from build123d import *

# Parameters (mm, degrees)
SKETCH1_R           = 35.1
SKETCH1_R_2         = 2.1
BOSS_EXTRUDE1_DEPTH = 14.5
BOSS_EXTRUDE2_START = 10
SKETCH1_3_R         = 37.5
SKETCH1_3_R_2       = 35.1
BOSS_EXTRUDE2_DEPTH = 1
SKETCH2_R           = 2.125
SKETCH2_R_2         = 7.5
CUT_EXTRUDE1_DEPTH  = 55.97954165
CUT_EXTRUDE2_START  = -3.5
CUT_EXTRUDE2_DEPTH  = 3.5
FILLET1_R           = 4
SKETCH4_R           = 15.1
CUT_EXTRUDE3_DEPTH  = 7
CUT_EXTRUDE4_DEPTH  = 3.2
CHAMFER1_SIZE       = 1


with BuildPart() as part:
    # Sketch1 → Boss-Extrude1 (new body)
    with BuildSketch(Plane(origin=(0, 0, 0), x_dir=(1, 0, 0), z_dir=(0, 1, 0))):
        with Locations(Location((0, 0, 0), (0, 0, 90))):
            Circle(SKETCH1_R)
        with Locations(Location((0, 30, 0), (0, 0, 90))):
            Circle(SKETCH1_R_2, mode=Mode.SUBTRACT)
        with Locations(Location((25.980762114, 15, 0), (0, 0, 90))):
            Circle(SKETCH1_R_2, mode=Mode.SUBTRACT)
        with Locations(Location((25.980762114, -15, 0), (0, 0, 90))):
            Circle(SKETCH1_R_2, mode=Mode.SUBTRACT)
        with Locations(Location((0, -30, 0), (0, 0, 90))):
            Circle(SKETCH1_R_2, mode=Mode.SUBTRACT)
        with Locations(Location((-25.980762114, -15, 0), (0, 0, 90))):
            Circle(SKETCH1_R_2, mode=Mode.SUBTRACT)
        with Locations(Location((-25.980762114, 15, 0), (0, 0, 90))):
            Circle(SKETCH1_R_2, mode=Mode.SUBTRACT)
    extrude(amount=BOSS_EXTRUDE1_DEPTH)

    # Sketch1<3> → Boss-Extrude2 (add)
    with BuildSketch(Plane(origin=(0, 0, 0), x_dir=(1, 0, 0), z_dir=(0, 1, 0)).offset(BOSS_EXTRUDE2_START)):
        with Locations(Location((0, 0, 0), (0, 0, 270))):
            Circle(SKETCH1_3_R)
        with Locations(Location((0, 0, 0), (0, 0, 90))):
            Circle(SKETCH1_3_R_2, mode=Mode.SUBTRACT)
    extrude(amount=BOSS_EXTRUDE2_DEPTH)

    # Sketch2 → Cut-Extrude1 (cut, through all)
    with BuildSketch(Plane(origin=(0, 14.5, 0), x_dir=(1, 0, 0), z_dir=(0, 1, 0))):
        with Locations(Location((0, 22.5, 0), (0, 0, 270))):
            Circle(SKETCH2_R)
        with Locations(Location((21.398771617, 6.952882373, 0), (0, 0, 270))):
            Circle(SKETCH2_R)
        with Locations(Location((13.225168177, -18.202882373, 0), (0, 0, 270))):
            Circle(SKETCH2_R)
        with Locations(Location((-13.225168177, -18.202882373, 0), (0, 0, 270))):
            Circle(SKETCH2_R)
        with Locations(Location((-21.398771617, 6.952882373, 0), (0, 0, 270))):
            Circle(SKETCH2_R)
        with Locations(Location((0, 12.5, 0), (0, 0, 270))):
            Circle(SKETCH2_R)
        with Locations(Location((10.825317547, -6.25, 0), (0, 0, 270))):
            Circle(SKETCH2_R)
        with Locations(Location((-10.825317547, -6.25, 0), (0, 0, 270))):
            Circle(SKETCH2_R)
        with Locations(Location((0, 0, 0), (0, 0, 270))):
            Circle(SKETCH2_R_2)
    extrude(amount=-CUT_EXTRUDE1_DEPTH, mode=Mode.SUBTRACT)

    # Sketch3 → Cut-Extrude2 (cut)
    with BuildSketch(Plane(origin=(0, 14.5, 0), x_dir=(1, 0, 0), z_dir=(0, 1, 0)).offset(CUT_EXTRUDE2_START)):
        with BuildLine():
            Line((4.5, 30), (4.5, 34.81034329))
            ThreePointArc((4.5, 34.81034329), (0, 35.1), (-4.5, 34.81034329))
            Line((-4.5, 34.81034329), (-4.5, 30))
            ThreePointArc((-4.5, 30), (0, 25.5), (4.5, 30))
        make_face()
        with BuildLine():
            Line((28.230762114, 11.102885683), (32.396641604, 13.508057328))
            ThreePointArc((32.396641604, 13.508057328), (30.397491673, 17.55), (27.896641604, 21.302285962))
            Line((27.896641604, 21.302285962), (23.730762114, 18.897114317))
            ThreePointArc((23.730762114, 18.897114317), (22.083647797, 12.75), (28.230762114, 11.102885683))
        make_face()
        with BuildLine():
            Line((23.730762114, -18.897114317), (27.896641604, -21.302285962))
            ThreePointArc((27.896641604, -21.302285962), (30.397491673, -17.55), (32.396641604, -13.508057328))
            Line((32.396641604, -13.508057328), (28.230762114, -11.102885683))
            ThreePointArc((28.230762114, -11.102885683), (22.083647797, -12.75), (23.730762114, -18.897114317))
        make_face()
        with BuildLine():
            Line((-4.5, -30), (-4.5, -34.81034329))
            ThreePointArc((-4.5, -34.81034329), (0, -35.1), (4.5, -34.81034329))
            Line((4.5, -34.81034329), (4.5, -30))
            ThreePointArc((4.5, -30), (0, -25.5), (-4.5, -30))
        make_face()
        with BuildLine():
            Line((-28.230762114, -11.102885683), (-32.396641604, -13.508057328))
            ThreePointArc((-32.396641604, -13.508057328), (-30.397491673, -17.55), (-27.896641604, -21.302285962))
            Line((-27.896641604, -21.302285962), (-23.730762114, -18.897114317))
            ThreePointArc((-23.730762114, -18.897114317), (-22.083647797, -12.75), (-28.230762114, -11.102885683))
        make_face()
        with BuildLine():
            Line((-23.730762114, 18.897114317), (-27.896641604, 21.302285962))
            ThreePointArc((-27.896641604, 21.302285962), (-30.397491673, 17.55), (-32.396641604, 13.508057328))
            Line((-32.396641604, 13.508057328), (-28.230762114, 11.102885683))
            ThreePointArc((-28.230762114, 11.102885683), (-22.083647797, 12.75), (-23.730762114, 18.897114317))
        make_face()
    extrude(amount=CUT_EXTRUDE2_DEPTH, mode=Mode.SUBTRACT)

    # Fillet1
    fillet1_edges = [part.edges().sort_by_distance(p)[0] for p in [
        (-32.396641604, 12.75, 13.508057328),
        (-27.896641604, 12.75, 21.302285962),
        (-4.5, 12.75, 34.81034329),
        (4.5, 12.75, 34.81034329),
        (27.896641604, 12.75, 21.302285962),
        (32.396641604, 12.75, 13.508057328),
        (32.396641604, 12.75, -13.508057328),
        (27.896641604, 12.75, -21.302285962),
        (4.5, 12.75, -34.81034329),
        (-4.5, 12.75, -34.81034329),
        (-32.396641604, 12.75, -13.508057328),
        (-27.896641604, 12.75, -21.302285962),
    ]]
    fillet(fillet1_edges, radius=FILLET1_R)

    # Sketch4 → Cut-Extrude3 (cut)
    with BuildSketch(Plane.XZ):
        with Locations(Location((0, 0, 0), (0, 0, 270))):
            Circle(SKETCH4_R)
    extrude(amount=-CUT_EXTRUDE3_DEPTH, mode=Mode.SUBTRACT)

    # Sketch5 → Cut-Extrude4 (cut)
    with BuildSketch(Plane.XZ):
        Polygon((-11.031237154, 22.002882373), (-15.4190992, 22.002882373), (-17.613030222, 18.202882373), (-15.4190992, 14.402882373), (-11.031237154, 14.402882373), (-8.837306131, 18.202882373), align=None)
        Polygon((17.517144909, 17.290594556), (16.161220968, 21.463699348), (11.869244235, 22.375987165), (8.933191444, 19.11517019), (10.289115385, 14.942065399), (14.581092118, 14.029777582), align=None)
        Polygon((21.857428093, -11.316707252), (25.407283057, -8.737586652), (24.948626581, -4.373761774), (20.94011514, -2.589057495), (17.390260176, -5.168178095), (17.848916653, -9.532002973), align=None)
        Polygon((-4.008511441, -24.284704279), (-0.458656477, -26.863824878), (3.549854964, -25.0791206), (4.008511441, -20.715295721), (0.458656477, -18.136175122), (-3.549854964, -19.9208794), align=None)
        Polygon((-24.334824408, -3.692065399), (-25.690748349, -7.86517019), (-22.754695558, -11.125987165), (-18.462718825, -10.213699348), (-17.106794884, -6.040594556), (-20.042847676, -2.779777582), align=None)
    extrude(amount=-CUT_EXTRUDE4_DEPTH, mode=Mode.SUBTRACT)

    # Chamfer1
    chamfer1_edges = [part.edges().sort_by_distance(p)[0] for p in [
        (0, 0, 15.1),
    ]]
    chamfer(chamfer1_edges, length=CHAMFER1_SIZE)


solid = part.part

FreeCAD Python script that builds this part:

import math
import FreeCAD as App
import Part
import Sketcher
from FreeCAD import Vector
Q = App.Units.Quantity


def edges_at(feature, points):
    """Names of the edges that pass closest to the given points."""
    edges = feature.Shape.Edges
    near = lambda p: min(range(len(edges)), key=lambda i: edges[i].distToShape(Part.Vertex(*p))[0])
    return sorted({f"Edge{near(p) + 1}" for p in points})


def add_polygon(sketch, points):
    """Adds a closed chain of lines whose ends are joined by coincident constraints."""
    first, n = sketch.GeometryCount, len(points)
    for a, b in zip(points, points[1:] + points[:1]):
        sketch.addGeometry(Part.LineSegment(App.Vector(*a, 0), App.Vector(*b, 0)), False)
    for i in range(n):
        sketch.addConstraint(Sketcher.Constraint("Coincident", first + i, 2, first + (i + 1) % n, 1))

doc = App.newDocument("Part")
params = doc.addObject("Spreadsheet::Sheet", "Params")
for row, (alias, value) in enumerate([
    ("sketch1_diameter", "70.2 mm"),
    ("sketch1_diameter2", "4.2 mm"),
    ("pad1_length", "14.5 mm"),
    ("sketch2_diameter", "75 mm"),
    ("sketch2_diameter2", "70.2 mm"),
    ("pad2_length", "1 mm"),
    ("sketch3_diameter", "15 mm"),
    ("sketch3_diameter2", "4.25 mm"),
    ("sketch4_radius", "35.1 mm"),
    ("sketch4_radius2", "4.5 mm"),
    ("pocket2_length", "3.5 mm"),
    ("fillet_radius", "4 mm"),
    ("sketch5_diameter", "30.2 mm"),
    ("pocket3_length", "7 mm"),
    ("pocket4_length", "3.2 mm"),
    ("chamfer_size", "1 mm"),
], start=1):
    params.set(f"A{row}", alias)
    params.set(f"B{row}", "=" + value)
    params.setAlias(f"B{row}", alias)

body = doc.addObject("PartDesign::Body", "Body")

sketch1 = doc.addObject("Sketcher::SketchObject", "Sketch")
body.addObject(sketch1)
sketch1.AttachmentSupport = (doc.XZ_Plane, [""])
sketch1.MapMode = "FlatFace"
sketch1.addGeometry(Part.Circle(Vector(0, 0, 0), Vector(0, 0, 1), 35.1), False)
sketch1.addGeometry(Part.Circle(Vector(26, 15, 0), Vector(0, 0, 1), 2.1), False)
sketch1.addGeometry(Part.Circle(Vector(0, 30, 0), Vector(0, 0, 1), 2.1), False)
sketch1.addGeometry(Part.Circle(Vector(26, -15, 0), Vector(0, 0, 1), 2.1), False)
sketch1.addGeometry(Part.Circle(Vector(-26, 15, 0), Vector(0, 0, 1), 2.1), False)
sketch1.addGeometry(Part.Circle(Vector(0, -30, 0), Vector(0, 0, 1), 2.1), False)
sketch1.addGeometry(Part.Circle(Vector(-26, -15, 0), Vector(0, 0, 1), 2.1), False)
sketch1.addConstraint(Sketcher.Constraint("Coincident", 0, 3, -1, 1))
sketch1.addConstraint(Sketcher.Constraint("Equal", 1, 2))
sketch1.addConstraint(Sketcher.Constraint("Equal", 2, 3))
sketch1.addConstraint(Sketcher.Constraint("Equal", 3, 4))
sketch1.addConstraint(Sketcher.Constraint("Equal", 4, 5))
sketch1.addConstraint(Sketcher.Constraint("Equal", 5, 6))
sketch1.addConstraint(Sketcher.Constraint("Symmetric", 3, 3, 4, 3, -1, 1))
sketch1.addConstraint(Sketcher.Constraint("Symmetric", 2, 3, 5, 3, -1, 1))
sketch1.addConstraint(Sketcher.Constraint("Symmetric", 1, 3, 6, 3, -1, 1))
sketch1.addConstraint(Sketcher.Constraint("Symmetric", 1, 3, 4, 3, -2))
sketch1.addConstraint(Sketcher.Constraint("PointOnObject", 2, 3, -2))
sketch1.addConstraint(Sketcher.Constraint("Diameter", 0, Q("70.2 mm")))
sketch1.addConstraint(Sketcher.Constraint("Diameter", 1, Q("4.2 mm")))
sketch1.addConstraint(Sketcher.Constraint("DistanceY", -1, 1, 1, 3, Q("15 mm")))
sketch1.addConstraint(Sketcher.Constraint("DistanceY", -1, 1, 2, 3, Q("30 mm")))
sketch1.addConstraint(Sketcher.Constraint("DistanceX", -1, 1, 1, 3, Q("25.980762 mm")))
sketch1.setExpression("Constraints[11]", "Params.sketch1_diameter")
sketch1.setExpression("Constraints[12]", "Params.sketch1_diameter2")
pad1 = doc.addObject("PartDesign::Pad", "Pad")
body.addObject(pad1)
pad1.Profile = sketch1
pad1.setExpression("Length", "Params.pad1_length")
pad1.Reversed = True

sketch2 = doc.addObject("Sketcher::SketchObject", "Sketch001")
body.addObject(sketch2)
sketch2.AttachmentSupport = (doc.XZ_Plane, [""])
sketch2.MapMode = "FlatFace"
sketch2.AttachmentOffset = App.Placement(Vector(0, 0, -10), App.Rotation())
sketch2.addGeometry(Part.Circle(Vector(0, 0, 0), Vector(0, 0, 1), 38), False)
sketch2.addGeometry(Part.Circle(Vector(0, 0, 0), Vector(0, 0, 1), 35), False)
sketch2.addConstraint(Sketcher.Constraint("Coincident", 0, 3, -1, 1))
sketch2.addConstraint(Sketcher.Constraint("Coincident", 1, 3, -1, 1))
sketch2.addConstraint(Sketcher.Constraint("Diameter", 0, Q("75 mm")))
sketch2.addConstraint(Sketcher.Constraint("Diameter", 1, Q("70.2 mm")))
sketch2.setExpression("Constraints[2]", "Params.sketch2_diameter")
sketch2.setExpression("Constraints[3]", "Params.sketch2_diameter2")
pad2 = doc.addObject("PartDesign::Pad", "Pad001")
body.addObject(pad2)
pad2.Profile = sketch2
pad2.setExpression("Length", "Params.pad2_length")
pad2.Reversed = True

sketch3 = doc.addObject("Sketcher::SketchObject", "Sketch002")
body.addObject(sketch3)
sketch3.AttachmentSupport = (doc.XZ_Plane, [""])
sketch3.MapMode = "FlatFace"
sketch3.AttachmentOffset = App.Placement(Vector(0, 0, -14.5), App.Rotation())
sketch3.addGeometry(Part.Circle(Vector(0, -22.5, 0), Vector(0, 0, 1), 2.1), False)
sketch3.addGeometry(Part.Circle(Vector(21.4, -7, 0), Vector(0, 0, 1), 2.1), False)
sketch3.addGeometry(Part.Circle(Vector(13.2, 18.2, 0), Vector(0, 0, 1), 2.1), False)
sketch3.addGeometry(Part.Circle(Vector(-13.2, 18.2, 0), Vector(0, 0, 1), 2.1), False)
sketch3.addGeometry(Part.Circle(Vector(-21.4, -7, 0), Vector(0, 0, 1), 2.1), False)
sketch3.addGeometry(Part.Circle(Vector(0, -12.5, 0), Vector(0, 0, 1), 2.1), False)
sketch3.addGeometry(Part.Circle(Vector(10.8, 6.2, 0), Vector(0, 0, 1), 2.1), False)
sketch3.addGeometry(Part.Circle(Vector(-10.8, 6.2, 0), Vector(0, 0, 1), 2.1), False)
sketch3.addGeometry(Part.Circle(Vector(0, 0, 0), Vector(0, 0, 1), 7.5), False)
sketch3.addConstraint(Sketcher.Constraint("Coincident", 8, 3, -1, 1))
sketch3.addConstraint(Sketcher.Constraint("Equal", 0, 1))
sketch3.addConstraint(Sketcher.Constraint("Equal", 1, 2))
sketch3.addConstraint(Sketcher.Constraint("Equal", 2, 3))
sketch3.addConstraint(Sketcher.Constraint("Equal", 3, 4))
sketch3.addConstraint(Sketcher.Constraint("Equal", 4, 5))
sketch3.addConstraint(Sketcher.Constraint("Equal", 5, 6))
sketch3.addConstraint(Sketcher.Constraint("Equal", 6, 7))
sketch3.addConstraint(Sketcher.Constraint("Symmetric", 2, 3, 3, 3, -2))
sketch3.addConstraint(Sketcher.Constraint("Symmetric", 1, 3, 4, 3, -2))
sketch3.addConstraint(Sketcher.Constraint("Symmetric", 6, 3, 7, 3, -2))
sketch3.addConstraint(Sketcher.Constraint("PointOnObject", 0, 3, -2))
sketch3.addConstraint(Sketcher.Constraint("PointOnObject", 5, 3, -2))
sketch3.addConstraint(Sketcher.Constraint("Diameter", 8, Q("15 mm")))
sketch3.addConstraint(Sketcher.Constraint("Diameter", 0, Q("4.25 mm")))
sketch3.addConstraint(Sketcher.Constraint("DistanceY", 0, 3, 5, 3, Q("10 mm")))
sketch3.addConstraint(Sketcher.Constraint("DistanceY", 0, 3, -1, 1, Q("22.5 mm")))
sketch3.addConstraint(Sketcher.Constraint("DistanceY", -1, 1, 6, 3, Q("6.25 mm")))
sketch3.addConstraint(Sketcher.Constraint("DistanceX", -1, 1, 1, 3, Q("21.398772 mm")))
sketch3.addConstraint(Sketcher.Constraint("DistanceX", -1, 1, 2, 3, Q("13.225168 mm")))
sketch3.addConstraint(Sketcher.Constraint("DistanceX", 6, 3, 2, 3, Q("2.399851 mm")))
sketch3.addConstraint(Sketcher.Constraint("DistanceY", 1, 3, -1, 1, Q("6.952882 mm")))
sketch3.addConstraint(Sketcher.Constraint("DistanceY", -1, 1, 2, 3, Q("18.202882 mm")))
sketch3.setExpression("Constraints[13]", "Params.sketch3_diameter")
sketch3.setExpression("Constraints[14]", "Params.sketch3_diameter2")
pocket1 = doc.addObject("PartDesign::Pocket", "Pocket")
body.addObject(pocket1)
pocket1.Profile = sketch3
pocket1.Type = "ThroughAll"
pocket1.Reversed = True

sketch4 = doc.addObject("Sketcher::SketchObject", "Sketch003")
body.addObject(sketch4)
sketch4.AttachmentSupport = (doc.XZ_Plane, [""])
sketch4.MapMode = "FlatFace"
sketch4.AttachmentOffset = App.Placement(Vector(0, 0, -11), App.Rotation())
sketch4.addGeometry(Part.LineSegment(Vector(4.5, -30, 0), Vector(4.5, -34.8, 0)), False)
sketch4.addGeometry(Part.ArcOfCircle(Part.Circle(Vector(0, 0, 0), Vector(0, 0, 1), 35.1), math.radians(-97.37), math.radians(-82.63)), False)
sketch4.addGeometry(Part.LineSegment(Vector(-4.5, -34.8, 0), Vector(-4.5, -30, 0)), False)
sketch4.addGeometry(Part.ArcOfCircle(Part.Circle(Vector(0, -30, 0), Vector(0, 0, 1), 4.5), math.radians(0), math.radians(180)), False)
sketch4.addGeometry(Part.LineSegment(Vector(28.2, -11.1, 0), Vector(32.4, -13.5, 0)), False)
sketch4.addGeometry(Part.ArcOfCircle(Part.Circle(Vector(0, 0, 0), Vector(0, 0, 1), 35.1), math.radians(-37.37), math.radians(-22.63)), False)
sketch4.addGeometry(Part.LineSegment(Vector(27.9, -21.3, 0), Vector(23.7, -18.9, 0)), False)
sketch4.addGeometry(Part.ArcOfCircle(Part.Circle(Vector(26, -15, 0), Vector(0, 0, 1), 4.5), math.radians(60), math.radians(240)), False)
sketch4.addGeometry(Part.LineSegment(Vector(23.7, 18.9, 0), Vector(27.9, 21.3, 0)), False)
sketch4.addGeometry(Part.ArcOfCircle(Part.Circle(Vector(0, 0, 0), Vector(0, 0, 1), 35.1), math.radians(22.63), math.radians(37.37)), False)
sketch4.addGeometry(Part.LineSegment(Vector(32.4, 13.5, 0), Vector(28.2, 11.1, 0)), False)
sketch4.addGeometry(Part.ArcOfCircle(Part.Circle(Vector(26, 15, 0), Vector(0, 0, 1), 4.5), math.radians(120), math.radians(300)), False)
sketch4.addGeometry(Part.LineSegment(Vector(-4.5, 30, 0), Vector(-4.5, 34.8, 0)), False)
sketch4.addGeometry(Part.ArcOfCircle(Part.Circle(Vector(0, 0, 0), Vector(0, 0, 1), 35.1), math.radians(82.63), math.radians(97.37)), False)
sketch4.addGeometry(Part.LineSegment(Vector(4.5, 34.8, 0), Vector(4.5, 30, 0)), False)
sketch4.addGeometry(Part.ArcOfCircle(Part.Circle(Vector(0, 30, 0), Vector(0, 0, 1), 4.5), math.radians(180), math.radians(360)), False)
sketch4.addGeometry(Part.LineSegment(Vector(-28.2, 11.1, 0), Vector(-32.4, 13.5, 0)), False)
sketch4.addGeometry(Part.ArcOfCircle(Part.Circle(Vector(0, 0, 0), Vector(0, 0, 1), 35.1), math.radians(142.63), math.radians(157.37)), False)
sketch4.addGeometry(Part.LineSegment(Vector(-27.9, 21.3, 0), Vector(-23.7, 18.9, 0)), False)
sketch4.addGeometry(Part.ArcOfCircle(Part.Circle(Vector(-26, 15, 0), Vector(0, 0, 1), 4.5), math.radians(-120), math.radians(60)), False)
sketch4.addGeometry(Part.LineSegment(Vector(-23.7, -18.9, 0), Vector(-27.9, -21.3, 0)), False)
sketch4.addGeometry(Part.ArcOfCircle(Part.Circle(Vector(0, 0, 0), Vector(0, 0, 1), 35.1), math.radians(-157.37), math.radians(-142.63)), False)
sketch4.addGeometry(Part.LineSegment(Vector(-32.4, -13.5, 0), Vector(-28.2, -11.1, 0)), False)
sketch4.addGeometry(Part.ArcOfCircle(Part.Circle(Vector(-26, -15, 0), Vector(0, 0, 1), 4.5), math.radians(-60), math.radians(120)), False)
sketch4.addConstraint(Sketcher.Constraint("Coincident", 0, 2, 1, 2))
sketch4.addConstraint(Sketcher.Constraint("Coincident", 1, 1, 2, 1))
sketch4.addConstraint(Sketcher.Constraint("Tangent", 2, 2, 3, 2))
sketch4.addConstraint(Sketcher.Constraint("Tangent", 3, 1, 0, 1))
sketch4.addConstraint(Sketcher.Constraint("Coincident", 4, 2, 5, 2))
sketch4.addConstraint(Sketcher.Constraint("Coincident", 5, 1, 6, 1))
sketch4.addConstraint(Sketcher.Constraint("Tangent", 6, 2, 7, 2))
sketch4.addConstraint(Sketcher.Constraint("Tangent", 7, 1, 4, 1))
sketch4.addConstraint(Sketcher.Constraint("Coincident", 8, 2, 9, 2))
sketch4.addConstraint(Sketcher.Constraint("Coincident", 9, 1, 10, 1))
sketch4.addConstraint(Sketcher.Constraint("Tangent", 10, 2, 11, 2))
sketch4.addConstraint(Sketcher.Constraint("Tangent", 11, 1, 8, 1))
sketch4.addConstraint(Sketcher.Constraint("Coincident", 12, 2, 13, 2))
sketch4.addConstraint(Sketcher.Constraint("Coincident", 13, 1, 14, 1))
sketch4.addConstraint(Sketcher.Constraint("Tangent", 14, 2, 15, 2))
sketch4.addConstraint(Sketcher.Constraint("Tangent", 15, 1, 12, 1))
sketch4.addConstraint(Sketcher.Constraint("Coincident", 16, 2, 17, 2))
sketch4.addConstraint(Sketcher.Constraint("Coincident", 17, 1, 18, 1))
sketch4.addConstraint(Sketcher.Constraint("Tangent", 18, 2, 19, 2))
sketch4.addConstraint(Sketcher.Constraint("Tangent", 19, 1, 16, 1))
sketch4.addConstraint(Sketcher.Constraint("Coincident", 20, 2, 21, 2))
sketch4.addConstraint(Sketcher.Constraint("Coincident", 21, 1, 22, 1))
sketch4.addConstraint(Sketcher.Constraint("Tangent", 22, 2, 23, 2))
sketch4.addConstraint(Sketcher.Constraint("Tangent", 23, 1, 20, 1))
sketch4.addConstraint(Sketcher.Constraint("Vertical", 0))
sketch4.addConstraint(Sketcher.Constraint("Vertical", 2))
sketch4.addConstraint(Sketcher.Constraint("Vertical", 12))
sketch4.addConstraint(Sketcher.Constraint("Vertical", 14))
sketch4.addConstraint(Sketcher.Constraint("Coincident", 1, 3, -1, 1))
sketch4.addConstraint(Sketcher.Constraint("Coincident", 5, 3, -1, 1))
sketch4.addConstraint(Sketcher.Constraint("Coincident", 9, 3, -1, 1))
sketch4.addConstraint(Sketcher.Constraint("Coincident", 13, 3, -1, 1))
sketch4.addConstraint(Sketcher.Constraint("Coincident", 17, 3, -1, 1))
sketch4.addConstraint(Sketcher.Constraint("Coincident", 21, 3, -1, 1))
sketch4.addConstraint(Sketcher.Constraint("Equal", 1, 5))
sketch4.addConstraint(Sketcher.Constraint("Equal", 3, 7))
sketch4.addConstraint(Sketcher.Constraint("Equal", 5, 9))
sketch4.addConstraint(Sketcher.Constraint("Equal", 7, 11))
sketch4.addConstraint(Sketcher.Constraint("Equal", 9, 13))
sketch4.addConstraint(Sketcher.Constraint("Equal", 11, 15))
sketch4.addConstraint(Sketcher.Constraint("Equal", 13, 17))
sketch4.addConstraint(Sketcher.Constraint("Equal", 15, 19))
sketch4.addConstraint(Sketcher.Constraint("Equal", 17, 21))
sketch4.addConstraint(Sketcher.Constraint("Equal", 19, 23))
sketch4.addConstraint(Sketcher.Constraint("Symmetric", 3, 3, 15, 3, -1, 1))
sketch4.addConstraint(Sketcher.Constraint("Symmetric", 7, 3, 19, 3, -1, 1))
sketch4.addConstraint(Sketcher.Constraint("Symmetric", 11, 3, 23, 3, -1, 1))
sketch4.addConstraint(Sketcher.Constraint("Symmetric", 11, 3, 19, 3, -2))
sketch4.addConstraint(Sketcher.Constraint("PointOnObject", 3, 3, -2))
sketch4.addConstraint(Sketcher.Constraint("Parallel", 4, 6))
sketch4.addConstraint(Sketcher.Constraint("Parallel", 8, 10))
sketch4.addConstraint(Sketcher.Constraint("Parallel", 6, 16))
sketch4.addConstraint(Sketcher.Constraint("Parallel", 16, 18))
sketch4.addConstraint(Sketcher.Constraint("Parallel", 10, 20))
sketch4.addConstraint(Sketcher.Constraint("Parallel", 20, 22))
sketch4.addConstraint(Sketcher.Constraint("Horizontal", 9, 1, 16, 2))
sketch4.addConstraint(Sketcher.Constraint("Equal", 4, 6))
sketch4.addConstraint(Sketcher.Constraint("Radius", 1, Q("35.1 mm")))
sketch4.addConstraint(Sketcher.Constraint("Radius", 3, Q("4.5 mm")))
sketch4.addConstraint(Sketcher.Constraint("Angle", 4, Q("-30 deg")))
sketch4.addConstraint(Sketcher.Constraint("DistanceY", 3, 3, -1, 1, Q("30 mm")))
sketch4.addConstraint(Sketcher.Constraint("DistanceY", 7, 3, -1, 1, Q("15 mm")))
sketch4.setExpression("Constraints[57]", "Params.sketch4_radius")
sketch4.setExpression("Constraints[58]", "Params.sketch4_radius2")
pocket2 = doc.addObject("PartDesign::Pocket", "Pocket001")
body.addObject(pocket2)
pocket2.Profile = sketch4
pocket2.setExpression("Length", "Params.pocket2_length")
doc.recompute()

fillet = doc.addObject("PartDesign::Fillet", "Fillet")
body.addObject(fillet)
fillet.Base = (pocket2, edges_at(pocket2, [
    (-32.397, 12.75, 13.508),
    (-27.897, 12.75, 21.302),
    (-4.5, 12.75, 34.81),
    (4.5, 12.75, 34.81),
    (27.897, 12.75, 21.302),
    (32.397, 12.75, 13.508),
    (32.397, 12.75, -13.508),
    (27.897, 12.75, -21.302),
    (4.5, 12.75, -34.81),
    (-4.5, 12.75, -34.81),
    (-32.397, 12.75, -13.508),
    (-27.897, 12.75, -21.302),
]))
fillet.setExpression("Radius", "Params.fillet_radius")

sketch5 = doc.addObject("Sketcher::SketchObject", "Sketch004")
body.addObject(sketch5)
sketch5.AttachmentSupport = (doc.XZ_Plane, [""])
sketch5.MapMode = "FlatFace"
sketch5.addGeometry(Part.Circle(Vector(0, 0, 0), Vector(0, 0, 1), 15), False)
sketch5.addConstraint(Sketcher.Constraint("Coincident", 0, 3, -1, 1))
sketch5.addConstraint(Sketcher.Constraint("Diameter", 0, Q("30.2 mm")))
sketch5.setExpression("Constraints[1]", "Params.sketch5_diameter")
pocket3 = doc.addObject("PartDesign::Pocket", "Pocket002")
body.addObject(pocket3)
pocket3.Profile = sketch5
pocket3.setExpression("Length", "Params.pocket3_length")

sketch6 = doc.addObject("Sketcher::SketchObject", "Sketch005")
body.addObject(sketch6)
sketch6.AttachmentSupport = (doc.XZ_Plane, [""])
sketch6.MapMode = "FlatFace"
add_polygon(sketch6, [(-11, 22), (-15.4, 22), (-17.6, 18.2), (-15.4, 14.4), (-11, 14.4), (-8.8, 18.2)])
add_polygon(sketch6, [(17.5, 17.3), (16.2, 21.5), (11.9, 22.4), (8.9, 19.1), (10.3, 14.9), (14.6, 14)])
add_polygon(sketch6, [(21.9, -11.3), (25.4, -8.7), (24.9, -4.4), (20.9, -2.6), (17.4, -5.2), (17.8, -9.5)])
add_polygon(sketch6, [(-4, -24.3), (-0.5, -26.9), (3.5, -25.1), (4, -20.7), (0.5, -18.1), (-3.5, -19.9)])
add_polygon(sketch6, [(-24.3, -3.7), (-25.7, -7.9), (-22.8, -11.1), (-18.5, -10.2), (-17.1, -6), (-20, -2.8)])
sketch6.addConstraint(Sketcher.Constraint("Horizontal", 0))
sketch6.addConstraint(Sketcher.Constraint("Horizontal", 3))
sketch6.addConstraint(Sketcher.Constraint("Parallel", 1, 4))
sketch6.addConstraint(Sketcher.Constraint("Parallel", 2, 5))
sketch6.addConstraint(Sketcher.Constraint("Parallel", 6, 9))
sketch6.addConstraint(Sketcher.Constraint("Parallel", 7, 10))
sketch6.addConstraint(Sketcher.Constraint("Parallel", 8, 11))
sketch6.addConstraint(Sketcher.Constraint("Parallel", 12, 15))
sketch6.addConstraint(Sketcher.Constraint("Parallel", 13, 16))
sketch6.addConstraint(Sketcher.Constraint("Parallel", 14, 17))
sketch6.addConstraint(Sketcher.Constraint("Parallel", 18, 21))
sketch6.addConstraint(Sketcher.Constraint("Parallel", 19, 22))
sketch6.addConstraint(Sketcher.Constraint("Parallel", 20, 23))
sketch6.addConstraint(Sketcher.Constraint("Parallel", 24, 27))
sketch6.addConstraint(Sketcher.Constraint("Parallel", 25, 28))
sketch6.addConstraint(Sketcher.Constraint("Parallel", 26, 29))
sketch6.addConstraint(Sketcher.Constraint("Horizontal", 1, 2, 4, 2))
sketch6.addConstraint(Sketcher.Constraint("Vertical", 0, 2, 2, 2))
sketch6.addConstraint(Sketcher.Constraint("Vertical", 3, 2, 5, 2))
sketch6.addConstraint(Sketcher.Constraint("Equal", 5, 6))
sketch6.addConstraint(Sketcher.Constraint("Equal", 6, 7))
sketch6.addConstraint(Sketcher.Constraint("Equal", 7, 8))
sketch6.addConstraint(Sketcher.Constraint("Equal", 8, 9))
sketch6.addConstraint(Sketcher.Constraint("Equal", 11, 12))
sketch6.addConstraint(Sketcher.Constraint("Equal", 12, 13))
sketch6.addConstraint(Sketcher.Constraint("Equal", 13, 14))
sketch6.addConstraint(Sketcher.Constraint("Equal", 14, 15))
sketch6.addConstraint(Sketcher.Constraint("Equal", 17, 18))
sketch6.addConstraint(Sketcher.Constraint("Equal", 18, 19))
sketch6.addConstraint(Sketcher.Constraint("Equal", 19, 20))
sketch6.addConstraint(Sketcher.Constraint("Equal", 20, 21))
sketch6.addConstraint(Sketcher.Constraint("Equal", 23, 24))
sketch6.addConstraint(Sketcher.Constraint("Equal", 24, 25))
sketch6.addConstraint(Sketcher.Constraint("Equal", 25, 26))
sketch6.addConstraint(Sketcher.Constraint("Equal", 26, 27))
sketch6.addConstraint(Sketcher.Constraint("Angle", 1, Q("-120 deg")))
sketch6.addConstraint(Sketcher.Constraint("Angle", 6, Q("108 deg")))
sketch6.addConstraint(Sketcher.Constraint("Angle", 7, Q("168 deg")))
sketch6.addConstraint(Sketcher.Constraint("Angle", 8, Q("-132 deg")))
sketch6.addConstraint(Sketcher.Constraint("Angle", 12, Q("36 deg")))
sketch6.addConstraint(Sketcher.Constraint("Angle", 13, Q("96 deg")))
sketch6.addConstraint(Sketcher.Constraint("Angle", 14, Q("156 deg")))
sketch6.addConstraint(Sketcher.Constraint("Angle", 18, Q("-36 deg")))
sketch6.addConstraint(Sketcher.Constraint("Angle", 19, Q("24 deg")))
sketch6.addConstraint(Sketcher.Constraint("Angle", 20, Q("84 deg")))
sketch6.addConstraint(Sketcher.Constraint("Angle", 24, Q("-108 deg")))
sketch6.addConstraint(Sketcher.Constraint("Angle", 25, Q("-48 deg")))
sketch6.addConstraint(Sketcher.Constraint("Angle", 26, Q("12 deg")))
sketch6.addConstraint(Sketcher.Constraint("DistanceY", 1, 2, 0, 2, Q("3.8 mm")))
sketch6.addConstraint(Sketcher.Constraint("DistanceX", 9, 2, 14, 2, Q("10.651 mm")))
sketch6.addConstraint(Sketcher.Constraint("DistanceX", 0, 2, -1, 1, Q("15.419099 mm")))
sketch6.addConstraint(Sketcher.Constraint("DistanceY", -1, 1, 6, 2, Q("21.463699 mm")))
sketch6.addConstraint(Sketcher.Constraint("DistanceY", 26, 2, -1, 1, Q("10.213699 mm")))
sketch6.addConstraint(Sketcher.Constraint("DistanceX", 4, 2, 10, 2, Q("23.418398 mm")))
sketch6.addConstraint(Sketcher.Constraint("DistanceX", 0, 2, 0, 1, Q("4.387862 mm")))
sketch6.addConstraint(Sketcher.Constraint("DistanceY", 13, 2, -1, 1, Q("4.373762 mm")))
sketch6.addConstraint(Sketcher.Constraint("DistanceY", 19, 2, -1, 1, Q("25.079121 mm")))
sketch6.addConstraint(Sketcher.Constraint("DistanceX", -1, 1, 20, 2, Q("4.008511 mm")))
sketch6.addConstraint(Sketcher.Constraint("DistanceX", 24, 2, -1, 1, Q("25.690748 mm")))
sketch6.addConstraint(Sketcher.Constraint("DistanceY", 25, 2, 2, 2, Q("25.52887 mm")))
pocket4 = doc.addObject("PartDesign::Pocket", "Pocket003")
body.addObject(pocket4)
pocket4.Profile = sketch6
pocket4.setExpression("Length", "Params.pocket4_length")
doc.recompute()

chamfer = doc.addObject("PartDesign::Chamfer", "Chamfer")
body.addObject(chamfer)
chamfer.Base = (pocket4, edges_at(pocket4, [(0, 0, 15.1)]))
chamfer.setExpression("Size", "Params.chamfer_size")

doc.recompute()
